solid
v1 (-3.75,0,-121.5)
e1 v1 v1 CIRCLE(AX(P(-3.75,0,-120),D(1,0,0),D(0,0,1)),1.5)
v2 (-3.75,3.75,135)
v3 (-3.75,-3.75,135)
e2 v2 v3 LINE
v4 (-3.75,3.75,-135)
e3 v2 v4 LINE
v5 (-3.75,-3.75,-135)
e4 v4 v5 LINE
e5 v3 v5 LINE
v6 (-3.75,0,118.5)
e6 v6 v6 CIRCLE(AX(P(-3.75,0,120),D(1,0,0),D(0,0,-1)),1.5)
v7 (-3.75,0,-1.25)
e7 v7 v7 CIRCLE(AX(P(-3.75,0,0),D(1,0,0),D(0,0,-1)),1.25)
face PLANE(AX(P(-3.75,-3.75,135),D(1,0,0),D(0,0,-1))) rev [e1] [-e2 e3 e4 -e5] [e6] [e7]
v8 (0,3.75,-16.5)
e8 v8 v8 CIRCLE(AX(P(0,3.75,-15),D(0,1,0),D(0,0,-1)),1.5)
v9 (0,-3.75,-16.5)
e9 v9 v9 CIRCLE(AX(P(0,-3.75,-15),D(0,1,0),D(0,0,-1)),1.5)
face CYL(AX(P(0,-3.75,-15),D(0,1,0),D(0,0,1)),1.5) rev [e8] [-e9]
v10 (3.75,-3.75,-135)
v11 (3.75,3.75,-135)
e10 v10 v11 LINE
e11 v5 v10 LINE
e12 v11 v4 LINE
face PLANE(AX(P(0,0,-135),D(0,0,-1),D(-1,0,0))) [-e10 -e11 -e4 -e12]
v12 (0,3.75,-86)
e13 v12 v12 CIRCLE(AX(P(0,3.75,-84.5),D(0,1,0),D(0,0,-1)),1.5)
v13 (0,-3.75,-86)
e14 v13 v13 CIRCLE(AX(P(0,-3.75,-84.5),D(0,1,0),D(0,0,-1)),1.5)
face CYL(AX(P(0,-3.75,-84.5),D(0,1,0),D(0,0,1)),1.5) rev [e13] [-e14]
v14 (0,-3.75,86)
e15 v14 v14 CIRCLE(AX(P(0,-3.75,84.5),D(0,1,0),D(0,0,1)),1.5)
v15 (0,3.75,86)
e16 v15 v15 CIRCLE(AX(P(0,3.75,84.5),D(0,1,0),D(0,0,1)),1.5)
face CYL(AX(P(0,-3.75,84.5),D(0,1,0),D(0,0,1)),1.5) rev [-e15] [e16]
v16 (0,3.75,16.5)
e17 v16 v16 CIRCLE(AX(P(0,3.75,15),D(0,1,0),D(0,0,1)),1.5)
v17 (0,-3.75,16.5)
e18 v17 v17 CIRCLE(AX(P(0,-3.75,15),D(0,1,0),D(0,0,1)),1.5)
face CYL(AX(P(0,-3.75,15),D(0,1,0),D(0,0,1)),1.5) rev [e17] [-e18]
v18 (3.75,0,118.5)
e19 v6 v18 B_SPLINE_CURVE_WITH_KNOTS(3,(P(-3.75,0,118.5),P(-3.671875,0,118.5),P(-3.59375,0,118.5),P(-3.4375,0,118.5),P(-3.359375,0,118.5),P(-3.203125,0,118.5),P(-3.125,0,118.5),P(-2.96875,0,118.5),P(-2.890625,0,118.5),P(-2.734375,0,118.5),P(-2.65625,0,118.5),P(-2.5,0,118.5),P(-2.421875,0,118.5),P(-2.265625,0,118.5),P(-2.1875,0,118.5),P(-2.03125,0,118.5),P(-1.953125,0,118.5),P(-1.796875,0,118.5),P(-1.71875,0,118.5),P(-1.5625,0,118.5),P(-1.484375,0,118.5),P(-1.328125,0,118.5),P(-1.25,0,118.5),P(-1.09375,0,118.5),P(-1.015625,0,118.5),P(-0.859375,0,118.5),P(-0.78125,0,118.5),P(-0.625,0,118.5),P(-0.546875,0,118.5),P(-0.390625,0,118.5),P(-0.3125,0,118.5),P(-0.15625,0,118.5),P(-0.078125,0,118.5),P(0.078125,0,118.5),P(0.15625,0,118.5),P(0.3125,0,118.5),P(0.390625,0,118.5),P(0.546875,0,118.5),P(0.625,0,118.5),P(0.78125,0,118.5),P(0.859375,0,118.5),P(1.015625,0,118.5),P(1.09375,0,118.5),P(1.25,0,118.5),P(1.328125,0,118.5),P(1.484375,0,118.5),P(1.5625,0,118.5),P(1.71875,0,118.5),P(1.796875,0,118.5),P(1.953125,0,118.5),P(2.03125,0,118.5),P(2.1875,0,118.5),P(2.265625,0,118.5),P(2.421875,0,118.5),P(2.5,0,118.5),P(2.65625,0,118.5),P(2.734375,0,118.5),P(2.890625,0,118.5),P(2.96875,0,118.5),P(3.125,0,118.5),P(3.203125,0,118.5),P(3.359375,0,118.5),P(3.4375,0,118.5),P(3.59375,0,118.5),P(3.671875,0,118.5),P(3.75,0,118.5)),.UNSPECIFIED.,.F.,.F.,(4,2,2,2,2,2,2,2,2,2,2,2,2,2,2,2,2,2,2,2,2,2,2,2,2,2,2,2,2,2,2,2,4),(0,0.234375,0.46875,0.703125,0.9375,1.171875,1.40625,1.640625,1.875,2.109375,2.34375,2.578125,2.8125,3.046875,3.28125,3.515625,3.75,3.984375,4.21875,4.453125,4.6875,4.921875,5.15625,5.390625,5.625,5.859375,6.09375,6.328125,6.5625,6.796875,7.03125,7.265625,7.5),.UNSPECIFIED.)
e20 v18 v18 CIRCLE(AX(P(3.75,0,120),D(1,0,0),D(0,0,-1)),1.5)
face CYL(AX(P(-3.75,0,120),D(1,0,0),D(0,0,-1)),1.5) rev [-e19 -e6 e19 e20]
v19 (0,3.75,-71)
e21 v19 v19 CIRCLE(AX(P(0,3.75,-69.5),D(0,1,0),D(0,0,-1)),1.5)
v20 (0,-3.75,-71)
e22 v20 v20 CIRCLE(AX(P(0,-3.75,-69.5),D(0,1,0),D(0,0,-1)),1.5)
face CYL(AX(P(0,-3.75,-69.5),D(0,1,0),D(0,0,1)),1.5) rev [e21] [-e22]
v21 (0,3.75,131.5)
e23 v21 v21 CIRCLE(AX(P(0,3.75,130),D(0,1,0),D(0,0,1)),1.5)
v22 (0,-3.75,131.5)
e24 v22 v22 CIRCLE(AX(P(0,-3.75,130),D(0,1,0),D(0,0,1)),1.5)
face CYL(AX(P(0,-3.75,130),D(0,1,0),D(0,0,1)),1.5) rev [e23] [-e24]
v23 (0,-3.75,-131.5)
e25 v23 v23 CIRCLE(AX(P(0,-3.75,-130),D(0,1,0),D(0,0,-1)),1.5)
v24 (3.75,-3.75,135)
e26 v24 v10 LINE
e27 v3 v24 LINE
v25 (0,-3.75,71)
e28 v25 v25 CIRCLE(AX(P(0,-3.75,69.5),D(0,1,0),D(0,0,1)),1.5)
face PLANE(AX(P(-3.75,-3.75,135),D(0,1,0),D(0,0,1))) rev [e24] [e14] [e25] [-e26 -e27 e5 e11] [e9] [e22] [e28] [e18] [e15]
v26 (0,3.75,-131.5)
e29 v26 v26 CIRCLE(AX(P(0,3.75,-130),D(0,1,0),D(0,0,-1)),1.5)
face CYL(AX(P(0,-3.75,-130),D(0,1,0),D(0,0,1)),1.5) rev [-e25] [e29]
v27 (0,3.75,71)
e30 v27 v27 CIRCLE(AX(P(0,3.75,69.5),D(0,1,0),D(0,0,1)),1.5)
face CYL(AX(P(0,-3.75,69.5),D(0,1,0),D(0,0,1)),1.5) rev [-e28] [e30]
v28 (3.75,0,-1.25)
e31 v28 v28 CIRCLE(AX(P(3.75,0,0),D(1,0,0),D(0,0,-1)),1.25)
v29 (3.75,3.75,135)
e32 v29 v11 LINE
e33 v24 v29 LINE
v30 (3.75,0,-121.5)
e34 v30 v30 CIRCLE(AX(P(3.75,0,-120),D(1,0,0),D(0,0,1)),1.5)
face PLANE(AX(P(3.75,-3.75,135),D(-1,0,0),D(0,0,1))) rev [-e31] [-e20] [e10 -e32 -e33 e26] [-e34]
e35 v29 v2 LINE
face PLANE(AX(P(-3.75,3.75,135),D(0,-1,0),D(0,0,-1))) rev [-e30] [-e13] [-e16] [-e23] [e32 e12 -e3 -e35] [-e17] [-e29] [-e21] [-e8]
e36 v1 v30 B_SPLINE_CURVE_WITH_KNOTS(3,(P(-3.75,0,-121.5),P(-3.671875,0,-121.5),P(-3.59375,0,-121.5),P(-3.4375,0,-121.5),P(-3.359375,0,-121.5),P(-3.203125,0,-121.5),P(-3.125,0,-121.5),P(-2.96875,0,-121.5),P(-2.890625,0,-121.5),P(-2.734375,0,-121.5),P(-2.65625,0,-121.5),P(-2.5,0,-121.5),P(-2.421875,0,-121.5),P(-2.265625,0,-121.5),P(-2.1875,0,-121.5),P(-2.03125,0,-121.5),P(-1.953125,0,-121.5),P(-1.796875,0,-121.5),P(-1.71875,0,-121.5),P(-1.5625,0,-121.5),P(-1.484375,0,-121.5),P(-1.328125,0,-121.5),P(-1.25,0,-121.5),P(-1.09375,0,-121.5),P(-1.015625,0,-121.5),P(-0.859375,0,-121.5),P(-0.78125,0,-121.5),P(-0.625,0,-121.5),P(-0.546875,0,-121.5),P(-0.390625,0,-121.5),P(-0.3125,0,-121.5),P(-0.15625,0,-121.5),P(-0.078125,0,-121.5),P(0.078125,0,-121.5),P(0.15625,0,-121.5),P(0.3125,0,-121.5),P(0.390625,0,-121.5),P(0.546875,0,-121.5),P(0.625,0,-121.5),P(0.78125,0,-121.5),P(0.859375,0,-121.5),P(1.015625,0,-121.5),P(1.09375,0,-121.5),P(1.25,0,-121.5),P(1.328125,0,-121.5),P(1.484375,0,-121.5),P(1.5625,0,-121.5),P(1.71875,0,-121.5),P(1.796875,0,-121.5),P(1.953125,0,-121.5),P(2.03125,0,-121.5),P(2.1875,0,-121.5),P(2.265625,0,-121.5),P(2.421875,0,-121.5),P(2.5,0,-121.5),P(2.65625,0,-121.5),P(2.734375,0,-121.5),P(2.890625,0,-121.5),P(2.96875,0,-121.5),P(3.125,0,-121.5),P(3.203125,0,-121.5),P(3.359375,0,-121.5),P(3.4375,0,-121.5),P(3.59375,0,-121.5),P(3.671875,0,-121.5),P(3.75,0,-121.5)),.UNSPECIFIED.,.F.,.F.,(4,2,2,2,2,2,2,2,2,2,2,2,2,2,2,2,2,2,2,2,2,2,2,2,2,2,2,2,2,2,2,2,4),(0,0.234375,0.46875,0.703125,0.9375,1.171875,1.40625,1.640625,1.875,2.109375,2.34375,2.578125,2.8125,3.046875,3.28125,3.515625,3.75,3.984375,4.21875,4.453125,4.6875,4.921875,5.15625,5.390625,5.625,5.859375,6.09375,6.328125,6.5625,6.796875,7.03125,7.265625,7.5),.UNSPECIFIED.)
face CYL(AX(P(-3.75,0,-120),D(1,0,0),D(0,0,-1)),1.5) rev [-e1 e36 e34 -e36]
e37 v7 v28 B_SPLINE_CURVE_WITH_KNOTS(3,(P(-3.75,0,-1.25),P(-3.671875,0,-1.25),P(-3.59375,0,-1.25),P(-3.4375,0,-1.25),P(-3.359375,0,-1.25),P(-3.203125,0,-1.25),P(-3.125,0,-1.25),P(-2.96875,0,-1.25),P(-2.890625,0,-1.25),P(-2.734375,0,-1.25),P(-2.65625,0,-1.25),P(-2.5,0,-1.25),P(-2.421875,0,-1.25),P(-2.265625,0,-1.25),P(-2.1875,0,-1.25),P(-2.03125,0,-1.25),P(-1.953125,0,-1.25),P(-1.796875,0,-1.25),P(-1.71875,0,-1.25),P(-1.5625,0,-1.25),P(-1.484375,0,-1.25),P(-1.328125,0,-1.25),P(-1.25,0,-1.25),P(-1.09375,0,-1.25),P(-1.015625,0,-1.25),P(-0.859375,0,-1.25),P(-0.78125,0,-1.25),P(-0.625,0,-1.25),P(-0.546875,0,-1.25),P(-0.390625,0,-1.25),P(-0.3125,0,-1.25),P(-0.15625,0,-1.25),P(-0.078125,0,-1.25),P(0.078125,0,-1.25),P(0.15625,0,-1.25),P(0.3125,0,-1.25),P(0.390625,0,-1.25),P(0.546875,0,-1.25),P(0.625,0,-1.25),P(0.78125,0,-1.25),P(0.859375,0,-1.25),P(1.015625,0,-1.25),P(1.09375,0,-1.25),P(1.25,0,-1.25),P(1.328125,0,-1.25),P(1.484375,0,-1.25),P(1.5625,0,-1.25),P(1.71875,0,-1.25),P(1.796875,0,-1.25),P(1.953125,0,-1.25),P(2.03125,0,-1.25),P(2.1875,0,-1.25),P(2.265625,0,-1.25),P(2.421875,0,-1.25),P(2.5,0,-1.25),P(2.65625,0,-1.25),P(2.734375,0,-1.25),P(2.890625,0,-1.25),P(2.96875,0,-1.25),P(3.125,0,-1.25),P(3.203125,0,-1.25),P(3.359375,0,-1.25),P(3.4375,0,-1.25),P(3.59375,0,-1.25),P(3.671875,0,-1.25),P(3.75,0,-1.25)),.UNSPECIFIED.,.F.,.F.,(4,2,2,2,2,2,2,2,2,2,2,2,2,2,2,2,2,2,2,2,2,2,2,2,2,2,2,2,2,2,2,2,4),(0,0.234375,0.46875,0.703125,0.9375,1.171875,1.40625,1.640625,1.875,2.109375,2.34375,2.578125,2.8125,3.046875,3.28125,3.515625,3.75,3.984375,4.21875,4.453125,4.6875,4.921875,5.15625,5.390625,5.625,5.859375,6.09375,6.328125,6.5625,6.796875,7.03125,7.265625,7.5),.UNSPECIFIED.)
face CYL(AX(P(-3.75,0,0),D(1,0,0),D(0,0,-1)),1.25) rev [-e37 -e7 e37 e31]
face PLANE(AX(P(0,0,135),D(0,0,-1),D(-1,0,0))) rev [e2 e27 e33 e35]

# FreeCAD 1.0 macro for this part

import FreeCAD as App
import Part
import Sketcher
Q = App.Units.Quantity


def add_polygon(sketch, points):
    """Adds a closed chain of lines whose ends are joined by coincident constraints."""
    first, n = sketch.GeometryCount, len(points)
    for a, b in zip(points, points[1:] + points[:1]):
        sketch.addGeometry(Part.LineSegment(App.Vector(*a, 0), App.Vector(*b, 0)), False)
    for i in range(n):
        sketch.addConstraint(Sketcher.Constraint("Coincident", first + i, 2, first + (i + 1) % n, 1))

doc = App.newDocument("Part")
body = doc.addObject("PartDesign::Body", "Body")

# Sketch on XY plane
sketch1 = doc.addObject("Sketcher::SketchObject", "Sketch")
body.addObject(sketch1)
sketch1.AttachmentSupport = (doc.XY_Plane, [""])
sketch1.MapMode = "FlatFace"
add_polygon(sketch1, [(-4, 4), (-4, -4), (4, -4), (4, 4)])  # lines 0-3
sketch1.addConstraint([
    Sketcher.Constraint("Vertical", 0),
    Sketcher.Constraint("Horizontal", 1),
    Sketcher.Constraint("Vertical", 2),
    Sketcher.Constraint("Horizontal", 3),
    Sketcher.Constraint("Symmetric", 0, 2, 2, 2, -1, 1),
    Sketcher.Constraint("Equal", 3, 0),
    Sketcher.Constraint("DistanceX", 1, 1, 1, 2, Q("7.5 mm")),
])
pad1 = doc.addObject("PartDesign::Pad", "Pad")
body.addObject(pad1)
pad1.Profile = sketch1
pad1.Length = 270
pad1.Midplane = True

# Sketch on YZ plane
sketch2 = doc.addObject("Sketcher::SketchObject", "Sketch001")
body.addObject(sketch2)
sketch2.AttachmentSupport = (doc.YZ_Plane, [""])
sketch2.MapMode = "FlatFace"
sketch2.AttachmentOffset = App.Placement(App.Vector(0, 0, 3.75), App.Rotation())
sketch2.addGeometry([
    Part.Circle(App.Vector(0, 120, 0), App.Vector(0, 0, 1), 1.5),
    Part.Circle(App.Vector(0, -120, 0), App.Vector(0, 0, 1), 1.5),
    Part.Circle(App.Vector(0, 0, 0), App.Vector(0, 0, 1), 1.2),
], False)
sketch2.addConstraint([
    Sketcher.Constraint("Coincident", 2, 3, -1, 1),
    Sketcher.Constraint("Equal", 0, 1),
    Sketcher.Constraint("Symmetric", 0, 3, 1, 3, -1, 1),
    Sketcher.Constraint("PointOnObject", 0, 3, -2),
    Sketcher.Constraint("Diameter", 0, Q("3 mm")),
    Sketcher.Constraint("Diameter", 2, Q("2.5 mm")),
    Sketcher.Constraint("DistanceY", -1, 1, 0, 3, Q("120 mm")),
])
pocket1 = doc.addObject("PartDesign::Pocket", "Pocket")
body.addObject(pocket1)
pocket1.Profile = sketch2
pocket1.Type = "ThroughAll"

# Sketch on XZ plane
sketch3 = doc.addObject("Sketcher::SketchObject", "Sketch002")
body.addObject(sketch3)
sketch3.AttachmentSupport = (doc.XZ_Plane, [""])
sketch3.MapMode = "FlatFace"
sketch3.AttachmentOffset = App.Placement(App.Vector(0, 0, -3.75), App.Rotation())
sketch3.addGeometry([
    Part.Circle(App.Vector(0, 69.5, 0), App.Vector(0, 0, 1), 1.5),  # 0
    Part.Circle(App.Vector(0, 84.5, 0), App.Vector(0, 0, 1), 1.5),  # 1
    Part.Circle(App.Vector(0, -84.5, 0), App.Vector(0, 0, 1), 1.5),  # 2
    Part.Circle(App.Vector(0, -69.5, 0), App.Vector(0, 0, 1), 1.5),  # 3
    Part.Circle(App.Vector(0, 130, 0), App.Vector(0, 0, 1), 1.5),  # 4
    Part.Circle(App.Vector(0, -130, 0), App.Vector(0, 0, 1), 1.5),  # 5
    Part.Circle(App.Vector(0, 15, 0), App.Vector(0, 0, 1), 1.5),  # 6
    Part.Circle(App.Vector(0, -15, 0), App.Vector(0, 0, 1), 1.5),  # 7
], False)
sketch3.addConstraint([
    Sketcher.Constraint("Equal", 0, 1),
    Sketcher.Constraint("Equal", 1, 2),
    Sketcher.Constraint("Equal", 2, 3),
    Sketcher.Constraint("Equal", 3, 4),
    Sketcher.Constraint("Equal", 4, 5),
    Sketcher.Constraint("Equal", 5, 6),
    Sketcher.Constraint("Equal", 6, 7),
    Sketcher.Constraint("Symmetric", 1, 3, 2, 3, -1, 1),
    Sketcher.Constraint("Symmetric", 0, 3, 3, 3, -1, 1),
    Sketcher.Constraint("Symmetric", 4, 3, 5, 3, -1, 1),
    Sketcher.Constraint("Symmetric", 6, 3, 7, 3, -1, 1),
    Sketcher.Constraint("PointOnObject", 0, 3, -2),
    Sketcher.Constraint("PointOnObject", 1, 3, -2),
    Sketcher.Constraint("PointOnObject", 4, 3, -2),
    Sketcher.Constraint("PointOnObject", 6, 3, -2),
    Sketcher.Constraint("Diameter", 0, Q("3 mm")),
    Sketcher.Constraint("DistanceY", -1, 1, 4, 3, Q("130 mm")),
    Sketcher.Constraint("DistanceY", -1, 1, 6, 3, Q("15 mm")),
    Sketcher.Constraint("DistanceY", 0, 3, 1, 3, Q("15 mm")),
    Sketcher.Constraint("DistanceY", 2, 3, 0, 3, Q("154 mm")),
])
pocket2 = doc.addObject("PartDesign::Pocket", "Pocket001")
body.addObject(pocket2)
pocket2.Profile = sketch3
pocket2.Type = "ThroughAll"
pocket2.Reversed = True

doc.recompute()
